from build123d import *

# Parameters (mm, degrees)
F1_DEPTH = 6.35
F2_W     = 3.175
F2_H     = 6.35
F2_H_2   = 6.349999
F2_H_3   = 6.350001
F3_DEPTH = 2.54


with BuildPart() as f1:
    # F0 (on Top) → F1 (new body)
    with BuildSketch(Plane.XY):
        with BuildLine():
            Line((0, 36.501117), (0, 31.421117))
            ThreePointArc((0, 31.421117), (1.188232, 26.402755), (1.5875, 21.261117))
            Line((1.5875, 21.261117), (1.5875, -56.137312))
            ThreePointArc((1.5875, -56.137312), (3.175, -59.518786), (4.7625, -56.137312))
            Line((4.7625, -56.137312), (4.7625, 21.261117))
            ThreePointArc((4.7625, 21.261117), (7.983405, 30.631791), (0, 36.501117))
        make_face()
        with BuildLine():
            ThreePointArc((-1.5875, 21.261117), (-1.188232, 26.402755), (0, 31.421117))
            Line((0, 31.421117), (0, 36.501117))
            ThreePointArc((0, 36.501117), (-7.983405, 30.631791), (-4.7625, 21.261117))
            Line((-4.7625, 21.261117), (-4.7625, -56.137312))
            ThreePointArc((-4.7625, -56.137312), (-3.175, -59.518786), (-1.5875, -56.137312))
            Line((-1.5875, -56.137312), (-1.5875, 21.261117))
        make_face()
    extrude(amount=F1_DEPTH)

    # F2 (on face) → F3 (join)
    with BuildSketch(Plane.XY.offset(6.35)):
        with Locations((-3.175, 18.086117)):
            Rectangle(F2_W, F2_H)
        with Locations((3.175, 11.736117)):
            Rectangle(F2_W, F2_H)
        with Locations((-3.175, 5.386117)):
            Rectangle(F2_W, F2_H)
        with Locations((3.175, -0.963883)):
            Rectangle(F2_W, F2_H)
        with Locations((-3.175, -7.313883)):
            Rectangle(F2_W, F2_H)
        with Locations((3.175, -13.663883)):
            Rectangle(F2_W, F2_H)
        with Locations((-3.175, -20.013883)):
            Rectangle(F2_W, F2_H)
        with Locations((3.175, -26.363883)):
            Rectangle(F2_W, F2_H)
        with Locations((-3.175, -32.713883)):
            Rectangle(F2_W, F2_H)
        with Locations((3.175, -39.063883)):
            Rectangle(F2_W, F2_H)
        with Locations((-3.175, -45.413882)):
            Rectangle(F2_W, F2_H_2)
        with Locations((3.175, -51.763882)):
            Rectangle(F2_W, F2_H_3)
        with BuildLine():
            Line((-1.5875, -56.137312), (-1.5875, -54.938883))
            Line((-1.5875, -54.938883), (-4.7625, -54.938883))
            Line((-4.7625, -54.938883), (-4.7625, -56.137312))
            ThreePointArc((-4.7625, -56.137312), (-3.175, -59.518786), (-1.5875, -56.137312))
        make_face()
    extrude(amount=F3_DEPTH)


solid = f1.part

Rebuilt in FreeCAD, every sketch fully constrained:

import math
import FreeCAD as App
import Part
import Sketcher
Q = App.Units.Quantity

doc = App.newDocument("Part")
body = doc.addObject("PartDesign::Body", "Body")

# Sketch on XY plane
sketch1 = body.newObject("Sketcher::SketchObject", "Sketch")
sketch1.AttachmentSupport = (doc.getObject("XY_Plane"), [""])
sketch1.MapMode = "FlatFace"
sketch1.addGeometry(Part.ArcOfCircle(Part.Circle(App.Vector(-31.7, 21.3, 0), App.Vector(0, 0, 1), 33.3), math.radians(0), math.radians(17.76)), False)
sketch1.addGeometry(Part.LineSegment(App.Vector(1.6, 21.3, 0), App.Vector(1.6, -56.1, 0)), False)
sketch1.addGeometry(Part.ArcOfCircle(Part.Circle(App.Vector(3.2, -57.5, 0), App.Vector(0, 0, 1), 2.1), math.radians(140), math.radians(400)), False)
sketch1.addGeometry(Part.LineSegment(App.Vector(4.8, -56.1, 0), App.Vector(4.8, 21.3, 0)), False)
sketch1.addGeometry(Part.ArcOfCircle(Part.Circle(App.Vector(0, 28.1, 0), App.Vector(0, 0, 1), 8.4), math.radians(-55), math.radians(90)), False)
sketch1.addGeometry(Part.ArcOfCircle(Part.Circle(App.Vector(0, 28.1, 0), App.Vector(0, 0, 1), 8.4), math.radians(90), math.radians(235)), False)
sketch1.addGeometry(Part.LineSegment(App.Vector(-4.8, 21.3, 0), App.Vector(-4.8, -56.1, 0)), False)
sketch1.addGeometry(Part.ArcOfCircle(Part.Circle(App.Vector(-3.2, -57.5, 0), App.Vector(0, 0, 1), 2.1), math.radians(140), math.radians(400)), False)
sketch1.addGeometry(Part.LineSegment(App.Vector(-1.6, -56.1, 0), App.Vector(-1.6, 21.3, 0)), False)
sketch1.addGeometry(Part.ArcOfCircle(Part.Circle(App.Vector(31.7, 21.3, 0), App.Vector(0, 0, 1), 33.3), math.radians(162.24), math.radians(180)), False)
sketch1.addConstraint(Sketcher.Constraint("Tangent", 0, 1, 1, 1))
sketch1.addConstraint(Sketcher.Constraint("Coincident", 1, 2, 2, 1))
sketch1.addConstraint(Sketcher.Constraint("Coincident", 2, 2, 3, 1))
sketch1.addConstraint(Sketcher.Constraint("Coincident", 3, 2, 4, 1))
sketch1.addConstraint(Sketcher.Constraint("Tangent", 4, 2, 5, 1))
sketch1.addConstraint(Sketcher.Constraint("Coincident", 5, 2, 6, 1))
sketch1.addConstraint(Sketcher.Constraint("Coincident", 6, 2, 7, 1))
sketch1.addConstraint(Sketcher.Constraint("Coincident", 7, 2, 8, 1))
sketch1.addConstraint(Sketcher.Constraint("Tangent", 8, 2, 9, 2))
sketch1.addConstraint(Sketcher.Constraint("Coincident", 9, 1, 0, 2))
sketch1.addConstraint(Sketcher.Constraint("Vertical", 1))
sketch1.addConstraint(Sketcher.Constraint("Vertical", 3))
sketch1.addConstraint(Sketcher.Constraint("Vertical", 6))
sketch1.addConstraint(Sketcher.Constraint("Vertical", 8))
sketch1.addConstraint(Sketcher.Constraint("Equal", 4, 5))
sketch1.addConstraint(Sketcher.Constraint("Equal", 2, 7))
sketch1.addConstraint(Sketcher.Constraint("Equal", 0, 9))
sketch1.addConstraint(Sketcher.Constraint("Symmetric", 2, 3, 7, 3, -2))
sketch1.addConstraint(Sketcher.Constraint("Symmetric", 0, 3, 9, 3, -2))
sketch1.addConstraint(Sketcher.Constraint("Symmetric", 3, 2, 5, 2, -2))
sketch1.addConstraint(Sketcher.Constraint("PointOnObject", 4, 2, -2))
sketch1.addConstraint(Sketcher.Constraint("Horizontal", 1, 2, 2, 2))
sketch1.addConstraint(Sketcher.Constraint("Horizontal", 0, 1, 3, 2))
sketch1.addConstraint(Sketcher.Constraint("DistanceY", 0, 1, 4, 2, Q("0.6 in")))
sketch1.addConstraint(Sketcher.Constraint("DistanceY", 9, 1, 4, 2, Q("0.2 in")))
sketch1.addConstraint(Sketcher.Constraint("DistanceX", 7, 3, 2, 3, Q("0.25 in")))
sketch1.addConstraint(Sketcher.Constraint("DistanceX", -1, 1, 0, 1, Q("0.0625 in")))
sketch1.addConstraint(Sketcher.Constraint("Radius", 2, Q("2.063379 mm")))
sketch1.addConstraint(Sketcher.Constraint("DistanceY", 1, 2, 1, 1, Q("77.398429 mm")))
sketch1.addConstraint(Sketcher.Constraint("DistanceY", -1, 1, 0, 3, Q("21.26112 mm")))
pad1 = body.newObject("PartDesign::Pad", "Pad")
pad1.Profile = sketch1
pad1.Length = Q("0.25 in")

# Sketch on XY plane
sketch2 = body.newObject("Sketcher::SketchObject", "Sketch001")
sketch2.AttachmentSupport = (doc.getObject("XY_Plane"), [""])
sketch2.MapMode = "FlatFace"
sketch2.AttachmentOffset = App.Placement(App.Vector(0, 0, 0.25 * 25.4), App.Rotation())
sketch2.addGeometry(Part.LineSegment(App.Vector(-4.8, 21.3, 0), App.Vector(-4.8, 14.9, 0)), False)
sketch2.addGeometry(Part.LineSegment(App.Vector(-4.8, 14.9, 0), App.Vector(-1.6, 14.9, 0)), False)
sketch2.addGeometry(Part.LineSegment(App.Vector(-1.6, 14.9, 0), App.Vector(-1.6, 21.3, 0)), False)
sketch2.addGeometry(Part.LineSegment(App.Vector(-1.6, 21.3, 0), App.Vector(-4.8, 21.3, 0)), False)
sketch2.addGeometry(Part.LineSegment(App.Vector(1.6, 14.9, 0), App.Vector(1.6, 8.6, 0)), False)
sketch2.addGeometry(Part.LineSegment(App.Vector(1.6, 8.6, 0), App.Vector(4.8, 8.6, 0)), False)
sketch2.addGeometry(Part.LineSegment(App.Vector(4.8, 8.6, 0), App.Vector(4.8, 14.9, 0)), False)
sketch2.addGeometry(Part.LineSegment(App.Vector(4.8, 14.9, 0), App.Vector(1.6, 14.9, 0)), False)
sketch2.addGeometry(Part.LineSegment(App.Vector(-4.8, 8.6, 0), App.Vector(-4.8, 2.2, 0)), False)
sketch2.addGeometry(Part.LineSegment(App.Vector(-4.8, 2.2, 0), App.Vector(-1.6, 2.2, 0)), False)
sketch2.addGeometry(Part.LineSegment(App.Vector(-1.6, 2.2, 0), App.Vector(-1.6, 8.6, 0)), False)
sketch2.addGeometry(Part.LineSegment(App.Vector(-1.6, 8.6, 0), App.Vector(-4.8, 8.6, 0)), False)
sketch2.addGeometry(Part.LineSegment(App.Vector(1.6, 2.2, 0), App.Vector(1.6, -4.1, 0)), False)
sketch2.addGeometry(Part.LineSegment(App.Vector(1.6, -4.1, 0), App.Vector(4.8, -4.1, 0)), False)
sketch2.addGeometry(Part.LineSegment(App.Vector(4.8, -4.1, 0), App.Vector(4.8, 2.2, 0)), False)
sketch2.addGeometry(Part.LineSegment(App.Vector(4.8, 2.2, 0), App.Vector(1.6, 2.2, 0)), False)
sketch2.addGeometry(Part.LineSegment(App.Vector(-4.8, -4.1, 0), App.Vector(-4.8, -10.5, 0)), False)
sketch2.addGeometry(Part.LineSegment(App.Vector(-4.8, -10.5, 0), App.Vector(-1.6, -10.5, 0)), False)
sketch2.addGeometry(Part.LineSegment(App.Vector(-1.6, -10.5, 0), App.Vector(-1.6, -4.1, 0)), False)
sketch2.addGeometry(Part.LineSegment(App.Vector(-1.6, -4.1, 0), App.Vector(-4.8, -4.1, 0)), False)
sketch2.addGeometry(Part.LineSegment(App.Vector(1.6, -10.5, 0), App.Vector(1.6, -16.8, 0)), False)
sketch2.addGeometry(Part.LineSegment(App.Vector(1.6, -16.8, 0), App.Vector(4.8, -16.8, 0)), False)
sketch2.addGeometry(Part.LineSegment(App.Vector(4.8, -16.8, 0), App.Vector(4.8, -10.5, 0)), False)
sketch2.addGeometry(Part.LineSegment(App.Vector(4.8, -10.5, 0), App.Vector(1.6, -10.5, 0)), False)
sketch2.addGeometry(Part.LineSegment(App.Vector(-4.8, -16.8, 0), App.Vector(-4.8, -23.2, 0)), False)
sketch2.addGeometry(Part.LineSegment(App.Vector(-4.8, -23.2, 0), App.Vector(-1.6, -23.2, 0)), False)
sketch2.addGeometry(Part.LineSegment(App.Vector(-1.6, -23.2, 0), App.Vector(-1.6, -16.8, 0)), False)
sketch2.addGeometry(Part.LineSegment(App.Vector(-1.6, -16.8, 0), App.Vector(-4.8, -16.8, 0)), False)
sketch2.addGeometry(Part.LineSegment(App.Vector(1.6, -23.2, 0), App.Vector(1.6, -29.5, 0)), False)
sketch2.addGeometry(Part.LineSegment(App.Vector(1.6, -29.5, 0), App.Vector(4.8, -29.5, 0)), False)
sketch2.addGeometry(Part.LineSegment(App.Vector(4.8, -29.5, 0), App.Vector(4.8, -23.2, 0)), False)
sketch2.addGeometry(Part.LineSegment(App.Vector(4.8, -23.2, 0), App.Vector(1.6, -23.2, 0)), False)
sketch2.addGeometry(Part.LineSegment(App.Vector(-4.8, -29.5, 0), App.Vector(-4.8, -35.9, 0)), False)
sketch2.addGeometry(Part.LineSegment(App.Vector(-4.8, -35.9, 0), App.Vector(-1.6, -35.9, 0)), False)
sketch2.addGeometry(Part.LineSegment(App.Vector(-1.6, -35.9, 0), App.Vector(-1.6, -29.5, 0)), False)
sketch2.addGeometry(Part.LineSegment(App.Vector(-1.6, -29.5, 0), App.Vector(-4.8, -29.5, 0)), False)
sketch2.addGeometry(Part.LineSegment(App.Vector(1.6, -35.9, 0), App.Vector(1.6, -42.2, 0)), False)
sketch2.addGeometry(Part.LineSegment(App.Vector(1.6, -42.2, 0), App.Vector(4.8, -42.2, 0)), False)
sketch2.addGeometry(Part.LineSegment(App.Vector(4.8, -42.2, 0), App.Vector(4.8, -35.9, 0)), False)
sketch2.addGeometry(Part.LineSegment(App.Vector(4.8, -35.9, 0), App.Vector(1.6, -35.9, 0)), False)
sketch2.addGeometry(Part.LineSegment(App.Vector(-4.8, -42.2, 0), App.Vector(-4.8, -48.6, 0)), False)
sketch2.addGeometry(Part.LineSegment(App.Vector(-4.8, -48.6, 0), App.Vector(-1.6, -48.6, 0)), False)
sketch2.addGeometry(Part.LineSegment(App.Vector(-1.6, -48.6, 0), App.Vector(-1.6, -42.2, 0)), False)
sketch2.addGeometry(Part.LineSegment(App.Vector(-1.6, -42.2, 0), App.Vector(-4.8, -42.2, 0)), False)
sketch2.addGeometry(Part.LineSegment(App.Vector(1.6, -48.6, 0), App.Vector(1.6, -54.9, 0)), False)
sketch2.addGeometry(Part.LineSegment(App.Vector(1.6, -54.9, 0), App.Vector(4.8, -54.9, 0)), False)
sketch2.addGeometry(Part.LineSegment(App.Vector(4.8, -54.9, 0), App.Vector(4.8, -48.6, 0)), False)
sketch2.addGeometry(Part.LineSegment(App.Vector(4.8, -48.6, 0), App.Vector(1.6, -48.6, 0)), False)
sketch2.addGeometry(Part.LineSegment(App.Vector(-1.6, -56.1, 0), App.Vector(-1.6, -54.9, 0)), False)
sketch2.addGeometry(Part.LineSegment(App.Vector(-1.6, -54.9, 0), App.Vector(-4.8, -54.9, 0)), False)
sketch2.addGeometry(Part.LineSegment(App.Vector(-4.8, -54.9, 0), App.Vector(-4.8, -56.1, 0)), False)
sketch2.addGeometry(Part.ArcOfCircle(Part.Circle(App.Vector(-3.2, -57.5, 0), App.Vector(0, 0, 1), 2.1), math.radians(140), math.radians(400)), False)
sketch2.addConstraint(Sketcher.Constraint("Coincident", 0, 2, 1, 1))
sketch2.addConstraint(Sketcher.Constraint("Coincident", 1, 2, 2, 1))
sketch2.addConstraint(Sketcher.Constraint("Coincident", 2, 2, 3, 1))
sketch2.addConstraint(Sketcher.Constraint("Coincident", 3, 2, 0, 1))
sketch2.addConstraint(Sketcher.Constraint("Coincident", 4, 2, 5, 1))
sketch2.addConstraint(Sketcher.Constraint("Coincident", 5, 2, 6, 1))
sketch2.addConstraint(Sketcher.Constraint("Coincident", 6, 2, 7, 1))
sketch2.addConstraint(Sketcher.Constraint("Coincident", 7, 2, 4, 1))
sketch2.addConstraint(Sketcher.Constraint("Coincident", 8, 2, 9, 1))
sketch2.addConstraint(Sketcher.Constraint("Coincident", 9, 2, 10, 1))
sketch2.addConstraint(Sketcher.Constraint("Coincident", 10, 2, 11, 1))
sketch2.addConstraint(Sketcher.Constraint("Coincident", 11, 2, 8, 1))
sketch2.addConstraint(Sketcher.Constraint("Coincident", 12, 2, 13, 1))
sketch2.addConstraint(Sketcher.Constraint("Coincident", 13, 2, 14, 1))
sketch2.addConstraint(Sketcher.Constraint("Coincident", 14, 2, 15, 1))
sketch2.addConstraint(Sketcher.Constraint("Coincident", 15, 2, 12, 1))
sketch2.addConstraint(Sketcher.Constraint("Coincident", 16, 2, 17, 1))
sketch2.addConstraint(Sketcher.Constraint("Coincident", 17, 2, 18, 1))
sketch2.addConstraint(Sketcher.Constraint("Coincident", 18, 2, 19, 1))
sketch2.addConstraint(Sketcher.Constraint("Coincident", 19, 2, 16, 1))
sketch2.addConstraint(Sketcher.Constraint("Coincident", 20, 2, 21, 1))
sketch2.addConstraint(Sketcher.Constraint("Coincident", 21, 2, 22, 1))
sketch2.addConstraint(Sketcher.Constraint("Coincident", 22, 2, 23, 1))
sketch2.addConstraint(Sketcher.Constraint("Coincident", 23, 2, 20, 1))
sketch2.addConstraint(Sketcher.Constraint("Coincident", 24, 2, 25, 1))
sketch2.addConstraint(Sketcher.Constraint("Coincident", 25, 2, 26, 1))
sketch2.addConstraint(Sketcher.Constraint("Coincident", 26, 2, 27, 1))
sketch2.addConstraint(Sketcher.Constraint("Coincident", 27, 2, 24, 1))
sketch2.addConstraint(Sketcher.Constraint("Coincident", 28, 2, 29, 1))
sketch2.addConstraint(Sketcher.Constraint("Coincident", 29, 2, 30, 1))
sketch2.addConstraint(Sketcher.Constraint("Coincident", 30, 2, 31, 1))
sketch2.addConstraint(Sketcher.Constraint("Coincident", 31, 2, 28, 1))
sketch2.addConstraint(Sketcher.Constraint("Coincident", 32, 2, 33, 1))
sketch2.addConstraint(Sketcher.Constraint("Coincident", 33, 2, 34, 1))
sketch2.addConstraint(Sketcher.Constraint("Coincident", 34, 2, 35, 1))
sketch2.addConstraint(Sketcher.Constraint("Coincident", 35, 2, 32, 1))
sketch2.addConstraint(Sketcher.Constraint("Coincident", 36, 2, 37, 1))
sketch2.addConstraint(Sketcher.Constraint("Coincident", 37, 2, 38, 1))
sketch2.addConstraint(Sketcher.Constraint("Coincident", 38, 2, 39, 1))
sketch2.addConstraint(Sketcher.Constraint("Coincident", 39, 2, 36, 1))
sketch2.addConstraint(Sketcher.Constraint("Coincident", 40, 2, 41, 1))
sketch2.addConstraint(Sketcher.Constraint("Coincident", 41, 2, 42, 1))
sketch2.addConstraint(Sketcher.Constraint("Coincident", 42, 2, 43, 1))
sketch2.addConstraint(Sketcher.Constraint("Coincident", 43, 2, 40, 1))
sketch2.addConstraint(Sketcher.Constraint("Coincident", 44, 2, 45, 1))
sketch2.addConstraint(Sketcher.Constraint("Coincident", 45, 2, 46, 1))
sketch2.addConstraint(Sketcher.Constraint("Coincident", 46, 2, 47, 1))
sketch2.addConstraint(Sketcher.Constraint("Coincident", 47, 2, 44, 1))
sketch2.addConstraint(Sketcher.Constraint("Coincident", 48, 2, 49, 1))
sketch2.addConstraint(Sketcher.Constraint("Coincident", 49, 2, 50, 1))
sketch2.addConstraint(Sketcher.Constraint("Coincident", 50, 2, 51, 1))
sketch2.addConstraint(Sketcher.Constraint("Coincident", 51, 2, 48, 1))
sketch2.addConstraint(Sketcher.Constraint("Vertical", 0))
sketch2.addConstraint(Sketcher.Constraint("Horizontal", 1))
sketch2.addConstraint(Sketcher.Constraint("Vertical", 2))
sketch2.addConstraint(Sketcher.Constraint("Horizontal", 3))
sketch2.addConstraint(Sketcher.Constraint("Vertical", 4))
sketch2.addConstraint(Sketcher.Constraint("Horizontal", 5))
sketch2.addConstraint(Sketcher.Constraint("Vertical", 6))
sketch2.addConstraint(Sketcher.Constraint("Horizontal", 7))
sketch2.addConstraint(Sketcher.Constraint("Vertical", 8))
sketch2.addConstraint(Sketcher.Constraint("Horizontal", 9))
sketch2.addConstraint(Sketcher.Constraint("Vertical", 10))
sketch2.addConstraint(Sketcher.Constraint("Horizontal", 11))
sketch2.addConstraint(Sketcher.Constraint("Vertical", 12))
sketch2.addConstraint(Sketcher.Constraint("Horizontal", 13))
sketch2.addConstraint(Sketcher.Constraint("Vertical", 14))
sketch2.addConstraint(Sketcher.Constraint("Horizontal", 15))
sketch2.addConstraint(Sketcher.Constraint("Vertical", 16))
sketch2.addConstraint(Sketcher.Constraint("Horizontal", 17))
sketch2.addConstraint(Sketcher.Constraint("Vertical", 18))
sketch2.addConstraint(Sketcher.Constraint("Horizontal", 19))
sketch2.addConstraint(Sketcher.Constraint("Vertical", 20))
sketch2.addConstraint(Sketcher.Constraint("Horizontal", 21))
sketch2.addConstraint(Sketcher.Constraint("Vertical", 22))
sketch2.addConstraint(Sketcher.Constraint("Horizontal", 23))
sketch2.addConstraint(Sketcher.Constraint("Vertical", 24))
sketch2.addConstraint(Sketcher.Constraint("Horizontal", 25))
sketch2.addConstraint(Sketcher.Constraint("Vertical", 26))
sketch2.addConstraint(Sketcher.Constraint("Horizontal", 27))
sketch2.addConstraint(Sketcher.Constraint("Vertical", 28))
sketch2.addConstraint(Sketcher.Constraint("Horizontal", 29))
sketch2.addConstraint(Sketcher.Constraint("Vertical", 30))
sketch2.addConstraint(Sketcher.Constraint("Horizontal", 31))
sketch2.addConstraint(Sketcher.Constraint("Vertical", 32))
sketch2.addConstraint(Sketcher.Constraint("Horizontal", 33))
sketch2.addConstraint(Sketcher.Constraint("Vertical", 34))
sketch2.addConstraint(Sketcher.Constraint("Horizontal", 35))
sketch2.addConstraint(Sketcher.Constraint("Vertical", 36))
sketch2.addConstraint(Sketcher.Constraint("Horizontal", 37))
sketch2.addConstraint(Sketcher.Constraint("Vertical", 38))
sketch2.addConstraint(Sketcher.Constraint("Horizontal", 39))
sketch2.addConstraint(Sketcher.Constraint("Vertical", 40))
sketch2.addConstraint(Sketcher.Constraint("Horizontal", 41))
sketch2.addConstraint(Sketcher.Constraint("Vertical", 42))
sketch2.addConstraint(Sketcher.Constraint("Horizontal", 43))
sketch2.addConstraint(Sketcher.Constraint("Vertical", 44))
sketch2.addConstraint(Sketcher.Constraint("Horizontal", 45))
sketch2.addConstraint(Sketcher.Constraint("Vertical", 46))
sketch2.addConstraint(Sketcher.Constraint("Horizontal", 47))
sketch2.addConstraint(Sketcher.Constraint("Vertical", 48))
sketch2.addConstraint(Sketcher.Constraint("Horizontal", 49))
sketch2.addConstraint(Sketcher.Constraint("Vertical", 50))
sketch2.addConstraint(Sketcher.Constraint("Symmetric", 0, 2, 6, 2, -2))
sketch2.addConstraint(Sketcher.Constraint("Symmetric", 4, 2, 10, 2, -2))
sketch2.addConstraint(Sketcher.Constraint("Symmetric", 8, 2, 14, 2, -2))
sketch2.addConstraint(Sketcher.Constraint("Symmetric", 12, 2, 18, 2, -2))
sketch2.addConstraint(Sketcher.Constraint("Symmetric", 16, 2, 22, 2, -2))
sketch2.addConstraint(Sketcher.Constraint("Symmetric", 20, 2, 26, 2, -2))
sketch2.addConstraint(Sketcher.Constraint("Symmetric", 24, 2, 30, 2, -2))
sketch2.addConstraint(Sketcher.Constraint("Symmetric", 28, 2, 34, 2, -2))
sketch2.addConstraint(Sketcher.Constraint("Symmetric", 32, 2, 38, 2, -2))
sketch2.addConstraint(Sketcher.Constraint("Symmetric", 36, 2, 42, 2, -2))
sketch2.addConstraint(Sketcher.Constraint("Symmetric", 40, 2, 46, 2, -2))
sketch2.addConstraint(Sketcher.Constraint("Symmetric", 44, 2, 48, 2, -2))
sketch2.addConstraint(Sketcher.Constraint("Horizontal", 50, 2, 51, 2))
sketch2.addConstraint(Sketcher.Constraint("Vertical", 3, 2, 8, 2))
sketch2.addConstraint(Sketcher.Constraint("Vertical", 2, 2, 9, 2))
sketch2.addConstraint(Sketcher.Constraint("Vertical", 7, 2, 12, 2))
sketch2.addConstraint(Sketcher.Constraint("Vertical", 11, 2, 16, 2))
sketch2.addConstraint(Sketcher.Constraint("Vertical", 15, 2, 20, 2))
sketch2.addConstraint(Sketcher.Constraint("Vertical", 19, 2, 24, 2))
sketch2.addConstraint(Sketcher.Constraint("Vertical", 23, 2, 28, 2))
sketch2.addConstraint(Sketcher.Constraint("Vertical", 27, 2, 32, 2))
sketch2.addConstraint(Sketcher.Constraint("Vertical", 31, 2, 36, 2))
sketch2.addConstraint(Sketcher.Constraint("Vertical", 35, 2, 40, 2))
sketch2.addConstraint(Sketcher.Constraint("Vertical", 39, 2, 44, 2))
sketch2.addConstraint(Sketcher.Constraint("Vertical", 43, 2, 49, 2))
sketch2.addConstraint(Sketcher.Constraint("Equal", 2, 4))
sketch2.addConstraint(Sketcher.Constraint("Equal", 6, 8))
sketch2.addConstraint(Sketcher.Constraint("Equal", 10, 12))
sketch2.addConstraint(Sketcher.Constraint("Equal", 14, 16))
sketch2.addConstraint(Sketcher.Constraint("Equal", 18, 20))
sketch2.addConstraint(Sketcher.Constraint("Equal", 22, 24))
sketch2.addConstraint(Sketcher.Constraint("Equal", 26, 28))
sketch2.addConstraint(Sketcher.Constraint("Equal", 30, 32))
sketch2.addConstraint(Sketcher.Constraint("Equal", 34, 36))
sketch2.addConstraint(Sketcher.Constraint("Equal", 38, 40))
sketch2.addConstraint(Sketcher.Constraint("Equal", 38, 44))
sketch2.addConstraint(Sketcher.Constraint("DistanceY", 0, 2, 0, 1, Q("0.25 in")))
sketch2.addConstraint(Sketcher.Constraint("DistanceX", 1, 1, 1, 2, Q("0.125 in")))
sketch2.addConstraint(Sketcher.Constraint("DistanceX", 0, 2, 4, 2, Q("0.25 in")))
sketch2.addConstraint(Sketcher.Constraint("Radius", 51, Q("2.063379 mm")))
sketch2.addConstraint(Sketcher.Constraint("DistanceY", 48, 1, 48, 2, Q("1.198429 mm")))
sketch2.addConstraint(Sketcher.Constraint("DistanceY", 40, 2, -1, 1, Q("48.588881 mm")))
pad2 = body.newObject("PartDesign::Pad", "Pad001")
pad2.Profile = sketch2
pad2.Length = Q("0.1 in")

doc.recompute()
